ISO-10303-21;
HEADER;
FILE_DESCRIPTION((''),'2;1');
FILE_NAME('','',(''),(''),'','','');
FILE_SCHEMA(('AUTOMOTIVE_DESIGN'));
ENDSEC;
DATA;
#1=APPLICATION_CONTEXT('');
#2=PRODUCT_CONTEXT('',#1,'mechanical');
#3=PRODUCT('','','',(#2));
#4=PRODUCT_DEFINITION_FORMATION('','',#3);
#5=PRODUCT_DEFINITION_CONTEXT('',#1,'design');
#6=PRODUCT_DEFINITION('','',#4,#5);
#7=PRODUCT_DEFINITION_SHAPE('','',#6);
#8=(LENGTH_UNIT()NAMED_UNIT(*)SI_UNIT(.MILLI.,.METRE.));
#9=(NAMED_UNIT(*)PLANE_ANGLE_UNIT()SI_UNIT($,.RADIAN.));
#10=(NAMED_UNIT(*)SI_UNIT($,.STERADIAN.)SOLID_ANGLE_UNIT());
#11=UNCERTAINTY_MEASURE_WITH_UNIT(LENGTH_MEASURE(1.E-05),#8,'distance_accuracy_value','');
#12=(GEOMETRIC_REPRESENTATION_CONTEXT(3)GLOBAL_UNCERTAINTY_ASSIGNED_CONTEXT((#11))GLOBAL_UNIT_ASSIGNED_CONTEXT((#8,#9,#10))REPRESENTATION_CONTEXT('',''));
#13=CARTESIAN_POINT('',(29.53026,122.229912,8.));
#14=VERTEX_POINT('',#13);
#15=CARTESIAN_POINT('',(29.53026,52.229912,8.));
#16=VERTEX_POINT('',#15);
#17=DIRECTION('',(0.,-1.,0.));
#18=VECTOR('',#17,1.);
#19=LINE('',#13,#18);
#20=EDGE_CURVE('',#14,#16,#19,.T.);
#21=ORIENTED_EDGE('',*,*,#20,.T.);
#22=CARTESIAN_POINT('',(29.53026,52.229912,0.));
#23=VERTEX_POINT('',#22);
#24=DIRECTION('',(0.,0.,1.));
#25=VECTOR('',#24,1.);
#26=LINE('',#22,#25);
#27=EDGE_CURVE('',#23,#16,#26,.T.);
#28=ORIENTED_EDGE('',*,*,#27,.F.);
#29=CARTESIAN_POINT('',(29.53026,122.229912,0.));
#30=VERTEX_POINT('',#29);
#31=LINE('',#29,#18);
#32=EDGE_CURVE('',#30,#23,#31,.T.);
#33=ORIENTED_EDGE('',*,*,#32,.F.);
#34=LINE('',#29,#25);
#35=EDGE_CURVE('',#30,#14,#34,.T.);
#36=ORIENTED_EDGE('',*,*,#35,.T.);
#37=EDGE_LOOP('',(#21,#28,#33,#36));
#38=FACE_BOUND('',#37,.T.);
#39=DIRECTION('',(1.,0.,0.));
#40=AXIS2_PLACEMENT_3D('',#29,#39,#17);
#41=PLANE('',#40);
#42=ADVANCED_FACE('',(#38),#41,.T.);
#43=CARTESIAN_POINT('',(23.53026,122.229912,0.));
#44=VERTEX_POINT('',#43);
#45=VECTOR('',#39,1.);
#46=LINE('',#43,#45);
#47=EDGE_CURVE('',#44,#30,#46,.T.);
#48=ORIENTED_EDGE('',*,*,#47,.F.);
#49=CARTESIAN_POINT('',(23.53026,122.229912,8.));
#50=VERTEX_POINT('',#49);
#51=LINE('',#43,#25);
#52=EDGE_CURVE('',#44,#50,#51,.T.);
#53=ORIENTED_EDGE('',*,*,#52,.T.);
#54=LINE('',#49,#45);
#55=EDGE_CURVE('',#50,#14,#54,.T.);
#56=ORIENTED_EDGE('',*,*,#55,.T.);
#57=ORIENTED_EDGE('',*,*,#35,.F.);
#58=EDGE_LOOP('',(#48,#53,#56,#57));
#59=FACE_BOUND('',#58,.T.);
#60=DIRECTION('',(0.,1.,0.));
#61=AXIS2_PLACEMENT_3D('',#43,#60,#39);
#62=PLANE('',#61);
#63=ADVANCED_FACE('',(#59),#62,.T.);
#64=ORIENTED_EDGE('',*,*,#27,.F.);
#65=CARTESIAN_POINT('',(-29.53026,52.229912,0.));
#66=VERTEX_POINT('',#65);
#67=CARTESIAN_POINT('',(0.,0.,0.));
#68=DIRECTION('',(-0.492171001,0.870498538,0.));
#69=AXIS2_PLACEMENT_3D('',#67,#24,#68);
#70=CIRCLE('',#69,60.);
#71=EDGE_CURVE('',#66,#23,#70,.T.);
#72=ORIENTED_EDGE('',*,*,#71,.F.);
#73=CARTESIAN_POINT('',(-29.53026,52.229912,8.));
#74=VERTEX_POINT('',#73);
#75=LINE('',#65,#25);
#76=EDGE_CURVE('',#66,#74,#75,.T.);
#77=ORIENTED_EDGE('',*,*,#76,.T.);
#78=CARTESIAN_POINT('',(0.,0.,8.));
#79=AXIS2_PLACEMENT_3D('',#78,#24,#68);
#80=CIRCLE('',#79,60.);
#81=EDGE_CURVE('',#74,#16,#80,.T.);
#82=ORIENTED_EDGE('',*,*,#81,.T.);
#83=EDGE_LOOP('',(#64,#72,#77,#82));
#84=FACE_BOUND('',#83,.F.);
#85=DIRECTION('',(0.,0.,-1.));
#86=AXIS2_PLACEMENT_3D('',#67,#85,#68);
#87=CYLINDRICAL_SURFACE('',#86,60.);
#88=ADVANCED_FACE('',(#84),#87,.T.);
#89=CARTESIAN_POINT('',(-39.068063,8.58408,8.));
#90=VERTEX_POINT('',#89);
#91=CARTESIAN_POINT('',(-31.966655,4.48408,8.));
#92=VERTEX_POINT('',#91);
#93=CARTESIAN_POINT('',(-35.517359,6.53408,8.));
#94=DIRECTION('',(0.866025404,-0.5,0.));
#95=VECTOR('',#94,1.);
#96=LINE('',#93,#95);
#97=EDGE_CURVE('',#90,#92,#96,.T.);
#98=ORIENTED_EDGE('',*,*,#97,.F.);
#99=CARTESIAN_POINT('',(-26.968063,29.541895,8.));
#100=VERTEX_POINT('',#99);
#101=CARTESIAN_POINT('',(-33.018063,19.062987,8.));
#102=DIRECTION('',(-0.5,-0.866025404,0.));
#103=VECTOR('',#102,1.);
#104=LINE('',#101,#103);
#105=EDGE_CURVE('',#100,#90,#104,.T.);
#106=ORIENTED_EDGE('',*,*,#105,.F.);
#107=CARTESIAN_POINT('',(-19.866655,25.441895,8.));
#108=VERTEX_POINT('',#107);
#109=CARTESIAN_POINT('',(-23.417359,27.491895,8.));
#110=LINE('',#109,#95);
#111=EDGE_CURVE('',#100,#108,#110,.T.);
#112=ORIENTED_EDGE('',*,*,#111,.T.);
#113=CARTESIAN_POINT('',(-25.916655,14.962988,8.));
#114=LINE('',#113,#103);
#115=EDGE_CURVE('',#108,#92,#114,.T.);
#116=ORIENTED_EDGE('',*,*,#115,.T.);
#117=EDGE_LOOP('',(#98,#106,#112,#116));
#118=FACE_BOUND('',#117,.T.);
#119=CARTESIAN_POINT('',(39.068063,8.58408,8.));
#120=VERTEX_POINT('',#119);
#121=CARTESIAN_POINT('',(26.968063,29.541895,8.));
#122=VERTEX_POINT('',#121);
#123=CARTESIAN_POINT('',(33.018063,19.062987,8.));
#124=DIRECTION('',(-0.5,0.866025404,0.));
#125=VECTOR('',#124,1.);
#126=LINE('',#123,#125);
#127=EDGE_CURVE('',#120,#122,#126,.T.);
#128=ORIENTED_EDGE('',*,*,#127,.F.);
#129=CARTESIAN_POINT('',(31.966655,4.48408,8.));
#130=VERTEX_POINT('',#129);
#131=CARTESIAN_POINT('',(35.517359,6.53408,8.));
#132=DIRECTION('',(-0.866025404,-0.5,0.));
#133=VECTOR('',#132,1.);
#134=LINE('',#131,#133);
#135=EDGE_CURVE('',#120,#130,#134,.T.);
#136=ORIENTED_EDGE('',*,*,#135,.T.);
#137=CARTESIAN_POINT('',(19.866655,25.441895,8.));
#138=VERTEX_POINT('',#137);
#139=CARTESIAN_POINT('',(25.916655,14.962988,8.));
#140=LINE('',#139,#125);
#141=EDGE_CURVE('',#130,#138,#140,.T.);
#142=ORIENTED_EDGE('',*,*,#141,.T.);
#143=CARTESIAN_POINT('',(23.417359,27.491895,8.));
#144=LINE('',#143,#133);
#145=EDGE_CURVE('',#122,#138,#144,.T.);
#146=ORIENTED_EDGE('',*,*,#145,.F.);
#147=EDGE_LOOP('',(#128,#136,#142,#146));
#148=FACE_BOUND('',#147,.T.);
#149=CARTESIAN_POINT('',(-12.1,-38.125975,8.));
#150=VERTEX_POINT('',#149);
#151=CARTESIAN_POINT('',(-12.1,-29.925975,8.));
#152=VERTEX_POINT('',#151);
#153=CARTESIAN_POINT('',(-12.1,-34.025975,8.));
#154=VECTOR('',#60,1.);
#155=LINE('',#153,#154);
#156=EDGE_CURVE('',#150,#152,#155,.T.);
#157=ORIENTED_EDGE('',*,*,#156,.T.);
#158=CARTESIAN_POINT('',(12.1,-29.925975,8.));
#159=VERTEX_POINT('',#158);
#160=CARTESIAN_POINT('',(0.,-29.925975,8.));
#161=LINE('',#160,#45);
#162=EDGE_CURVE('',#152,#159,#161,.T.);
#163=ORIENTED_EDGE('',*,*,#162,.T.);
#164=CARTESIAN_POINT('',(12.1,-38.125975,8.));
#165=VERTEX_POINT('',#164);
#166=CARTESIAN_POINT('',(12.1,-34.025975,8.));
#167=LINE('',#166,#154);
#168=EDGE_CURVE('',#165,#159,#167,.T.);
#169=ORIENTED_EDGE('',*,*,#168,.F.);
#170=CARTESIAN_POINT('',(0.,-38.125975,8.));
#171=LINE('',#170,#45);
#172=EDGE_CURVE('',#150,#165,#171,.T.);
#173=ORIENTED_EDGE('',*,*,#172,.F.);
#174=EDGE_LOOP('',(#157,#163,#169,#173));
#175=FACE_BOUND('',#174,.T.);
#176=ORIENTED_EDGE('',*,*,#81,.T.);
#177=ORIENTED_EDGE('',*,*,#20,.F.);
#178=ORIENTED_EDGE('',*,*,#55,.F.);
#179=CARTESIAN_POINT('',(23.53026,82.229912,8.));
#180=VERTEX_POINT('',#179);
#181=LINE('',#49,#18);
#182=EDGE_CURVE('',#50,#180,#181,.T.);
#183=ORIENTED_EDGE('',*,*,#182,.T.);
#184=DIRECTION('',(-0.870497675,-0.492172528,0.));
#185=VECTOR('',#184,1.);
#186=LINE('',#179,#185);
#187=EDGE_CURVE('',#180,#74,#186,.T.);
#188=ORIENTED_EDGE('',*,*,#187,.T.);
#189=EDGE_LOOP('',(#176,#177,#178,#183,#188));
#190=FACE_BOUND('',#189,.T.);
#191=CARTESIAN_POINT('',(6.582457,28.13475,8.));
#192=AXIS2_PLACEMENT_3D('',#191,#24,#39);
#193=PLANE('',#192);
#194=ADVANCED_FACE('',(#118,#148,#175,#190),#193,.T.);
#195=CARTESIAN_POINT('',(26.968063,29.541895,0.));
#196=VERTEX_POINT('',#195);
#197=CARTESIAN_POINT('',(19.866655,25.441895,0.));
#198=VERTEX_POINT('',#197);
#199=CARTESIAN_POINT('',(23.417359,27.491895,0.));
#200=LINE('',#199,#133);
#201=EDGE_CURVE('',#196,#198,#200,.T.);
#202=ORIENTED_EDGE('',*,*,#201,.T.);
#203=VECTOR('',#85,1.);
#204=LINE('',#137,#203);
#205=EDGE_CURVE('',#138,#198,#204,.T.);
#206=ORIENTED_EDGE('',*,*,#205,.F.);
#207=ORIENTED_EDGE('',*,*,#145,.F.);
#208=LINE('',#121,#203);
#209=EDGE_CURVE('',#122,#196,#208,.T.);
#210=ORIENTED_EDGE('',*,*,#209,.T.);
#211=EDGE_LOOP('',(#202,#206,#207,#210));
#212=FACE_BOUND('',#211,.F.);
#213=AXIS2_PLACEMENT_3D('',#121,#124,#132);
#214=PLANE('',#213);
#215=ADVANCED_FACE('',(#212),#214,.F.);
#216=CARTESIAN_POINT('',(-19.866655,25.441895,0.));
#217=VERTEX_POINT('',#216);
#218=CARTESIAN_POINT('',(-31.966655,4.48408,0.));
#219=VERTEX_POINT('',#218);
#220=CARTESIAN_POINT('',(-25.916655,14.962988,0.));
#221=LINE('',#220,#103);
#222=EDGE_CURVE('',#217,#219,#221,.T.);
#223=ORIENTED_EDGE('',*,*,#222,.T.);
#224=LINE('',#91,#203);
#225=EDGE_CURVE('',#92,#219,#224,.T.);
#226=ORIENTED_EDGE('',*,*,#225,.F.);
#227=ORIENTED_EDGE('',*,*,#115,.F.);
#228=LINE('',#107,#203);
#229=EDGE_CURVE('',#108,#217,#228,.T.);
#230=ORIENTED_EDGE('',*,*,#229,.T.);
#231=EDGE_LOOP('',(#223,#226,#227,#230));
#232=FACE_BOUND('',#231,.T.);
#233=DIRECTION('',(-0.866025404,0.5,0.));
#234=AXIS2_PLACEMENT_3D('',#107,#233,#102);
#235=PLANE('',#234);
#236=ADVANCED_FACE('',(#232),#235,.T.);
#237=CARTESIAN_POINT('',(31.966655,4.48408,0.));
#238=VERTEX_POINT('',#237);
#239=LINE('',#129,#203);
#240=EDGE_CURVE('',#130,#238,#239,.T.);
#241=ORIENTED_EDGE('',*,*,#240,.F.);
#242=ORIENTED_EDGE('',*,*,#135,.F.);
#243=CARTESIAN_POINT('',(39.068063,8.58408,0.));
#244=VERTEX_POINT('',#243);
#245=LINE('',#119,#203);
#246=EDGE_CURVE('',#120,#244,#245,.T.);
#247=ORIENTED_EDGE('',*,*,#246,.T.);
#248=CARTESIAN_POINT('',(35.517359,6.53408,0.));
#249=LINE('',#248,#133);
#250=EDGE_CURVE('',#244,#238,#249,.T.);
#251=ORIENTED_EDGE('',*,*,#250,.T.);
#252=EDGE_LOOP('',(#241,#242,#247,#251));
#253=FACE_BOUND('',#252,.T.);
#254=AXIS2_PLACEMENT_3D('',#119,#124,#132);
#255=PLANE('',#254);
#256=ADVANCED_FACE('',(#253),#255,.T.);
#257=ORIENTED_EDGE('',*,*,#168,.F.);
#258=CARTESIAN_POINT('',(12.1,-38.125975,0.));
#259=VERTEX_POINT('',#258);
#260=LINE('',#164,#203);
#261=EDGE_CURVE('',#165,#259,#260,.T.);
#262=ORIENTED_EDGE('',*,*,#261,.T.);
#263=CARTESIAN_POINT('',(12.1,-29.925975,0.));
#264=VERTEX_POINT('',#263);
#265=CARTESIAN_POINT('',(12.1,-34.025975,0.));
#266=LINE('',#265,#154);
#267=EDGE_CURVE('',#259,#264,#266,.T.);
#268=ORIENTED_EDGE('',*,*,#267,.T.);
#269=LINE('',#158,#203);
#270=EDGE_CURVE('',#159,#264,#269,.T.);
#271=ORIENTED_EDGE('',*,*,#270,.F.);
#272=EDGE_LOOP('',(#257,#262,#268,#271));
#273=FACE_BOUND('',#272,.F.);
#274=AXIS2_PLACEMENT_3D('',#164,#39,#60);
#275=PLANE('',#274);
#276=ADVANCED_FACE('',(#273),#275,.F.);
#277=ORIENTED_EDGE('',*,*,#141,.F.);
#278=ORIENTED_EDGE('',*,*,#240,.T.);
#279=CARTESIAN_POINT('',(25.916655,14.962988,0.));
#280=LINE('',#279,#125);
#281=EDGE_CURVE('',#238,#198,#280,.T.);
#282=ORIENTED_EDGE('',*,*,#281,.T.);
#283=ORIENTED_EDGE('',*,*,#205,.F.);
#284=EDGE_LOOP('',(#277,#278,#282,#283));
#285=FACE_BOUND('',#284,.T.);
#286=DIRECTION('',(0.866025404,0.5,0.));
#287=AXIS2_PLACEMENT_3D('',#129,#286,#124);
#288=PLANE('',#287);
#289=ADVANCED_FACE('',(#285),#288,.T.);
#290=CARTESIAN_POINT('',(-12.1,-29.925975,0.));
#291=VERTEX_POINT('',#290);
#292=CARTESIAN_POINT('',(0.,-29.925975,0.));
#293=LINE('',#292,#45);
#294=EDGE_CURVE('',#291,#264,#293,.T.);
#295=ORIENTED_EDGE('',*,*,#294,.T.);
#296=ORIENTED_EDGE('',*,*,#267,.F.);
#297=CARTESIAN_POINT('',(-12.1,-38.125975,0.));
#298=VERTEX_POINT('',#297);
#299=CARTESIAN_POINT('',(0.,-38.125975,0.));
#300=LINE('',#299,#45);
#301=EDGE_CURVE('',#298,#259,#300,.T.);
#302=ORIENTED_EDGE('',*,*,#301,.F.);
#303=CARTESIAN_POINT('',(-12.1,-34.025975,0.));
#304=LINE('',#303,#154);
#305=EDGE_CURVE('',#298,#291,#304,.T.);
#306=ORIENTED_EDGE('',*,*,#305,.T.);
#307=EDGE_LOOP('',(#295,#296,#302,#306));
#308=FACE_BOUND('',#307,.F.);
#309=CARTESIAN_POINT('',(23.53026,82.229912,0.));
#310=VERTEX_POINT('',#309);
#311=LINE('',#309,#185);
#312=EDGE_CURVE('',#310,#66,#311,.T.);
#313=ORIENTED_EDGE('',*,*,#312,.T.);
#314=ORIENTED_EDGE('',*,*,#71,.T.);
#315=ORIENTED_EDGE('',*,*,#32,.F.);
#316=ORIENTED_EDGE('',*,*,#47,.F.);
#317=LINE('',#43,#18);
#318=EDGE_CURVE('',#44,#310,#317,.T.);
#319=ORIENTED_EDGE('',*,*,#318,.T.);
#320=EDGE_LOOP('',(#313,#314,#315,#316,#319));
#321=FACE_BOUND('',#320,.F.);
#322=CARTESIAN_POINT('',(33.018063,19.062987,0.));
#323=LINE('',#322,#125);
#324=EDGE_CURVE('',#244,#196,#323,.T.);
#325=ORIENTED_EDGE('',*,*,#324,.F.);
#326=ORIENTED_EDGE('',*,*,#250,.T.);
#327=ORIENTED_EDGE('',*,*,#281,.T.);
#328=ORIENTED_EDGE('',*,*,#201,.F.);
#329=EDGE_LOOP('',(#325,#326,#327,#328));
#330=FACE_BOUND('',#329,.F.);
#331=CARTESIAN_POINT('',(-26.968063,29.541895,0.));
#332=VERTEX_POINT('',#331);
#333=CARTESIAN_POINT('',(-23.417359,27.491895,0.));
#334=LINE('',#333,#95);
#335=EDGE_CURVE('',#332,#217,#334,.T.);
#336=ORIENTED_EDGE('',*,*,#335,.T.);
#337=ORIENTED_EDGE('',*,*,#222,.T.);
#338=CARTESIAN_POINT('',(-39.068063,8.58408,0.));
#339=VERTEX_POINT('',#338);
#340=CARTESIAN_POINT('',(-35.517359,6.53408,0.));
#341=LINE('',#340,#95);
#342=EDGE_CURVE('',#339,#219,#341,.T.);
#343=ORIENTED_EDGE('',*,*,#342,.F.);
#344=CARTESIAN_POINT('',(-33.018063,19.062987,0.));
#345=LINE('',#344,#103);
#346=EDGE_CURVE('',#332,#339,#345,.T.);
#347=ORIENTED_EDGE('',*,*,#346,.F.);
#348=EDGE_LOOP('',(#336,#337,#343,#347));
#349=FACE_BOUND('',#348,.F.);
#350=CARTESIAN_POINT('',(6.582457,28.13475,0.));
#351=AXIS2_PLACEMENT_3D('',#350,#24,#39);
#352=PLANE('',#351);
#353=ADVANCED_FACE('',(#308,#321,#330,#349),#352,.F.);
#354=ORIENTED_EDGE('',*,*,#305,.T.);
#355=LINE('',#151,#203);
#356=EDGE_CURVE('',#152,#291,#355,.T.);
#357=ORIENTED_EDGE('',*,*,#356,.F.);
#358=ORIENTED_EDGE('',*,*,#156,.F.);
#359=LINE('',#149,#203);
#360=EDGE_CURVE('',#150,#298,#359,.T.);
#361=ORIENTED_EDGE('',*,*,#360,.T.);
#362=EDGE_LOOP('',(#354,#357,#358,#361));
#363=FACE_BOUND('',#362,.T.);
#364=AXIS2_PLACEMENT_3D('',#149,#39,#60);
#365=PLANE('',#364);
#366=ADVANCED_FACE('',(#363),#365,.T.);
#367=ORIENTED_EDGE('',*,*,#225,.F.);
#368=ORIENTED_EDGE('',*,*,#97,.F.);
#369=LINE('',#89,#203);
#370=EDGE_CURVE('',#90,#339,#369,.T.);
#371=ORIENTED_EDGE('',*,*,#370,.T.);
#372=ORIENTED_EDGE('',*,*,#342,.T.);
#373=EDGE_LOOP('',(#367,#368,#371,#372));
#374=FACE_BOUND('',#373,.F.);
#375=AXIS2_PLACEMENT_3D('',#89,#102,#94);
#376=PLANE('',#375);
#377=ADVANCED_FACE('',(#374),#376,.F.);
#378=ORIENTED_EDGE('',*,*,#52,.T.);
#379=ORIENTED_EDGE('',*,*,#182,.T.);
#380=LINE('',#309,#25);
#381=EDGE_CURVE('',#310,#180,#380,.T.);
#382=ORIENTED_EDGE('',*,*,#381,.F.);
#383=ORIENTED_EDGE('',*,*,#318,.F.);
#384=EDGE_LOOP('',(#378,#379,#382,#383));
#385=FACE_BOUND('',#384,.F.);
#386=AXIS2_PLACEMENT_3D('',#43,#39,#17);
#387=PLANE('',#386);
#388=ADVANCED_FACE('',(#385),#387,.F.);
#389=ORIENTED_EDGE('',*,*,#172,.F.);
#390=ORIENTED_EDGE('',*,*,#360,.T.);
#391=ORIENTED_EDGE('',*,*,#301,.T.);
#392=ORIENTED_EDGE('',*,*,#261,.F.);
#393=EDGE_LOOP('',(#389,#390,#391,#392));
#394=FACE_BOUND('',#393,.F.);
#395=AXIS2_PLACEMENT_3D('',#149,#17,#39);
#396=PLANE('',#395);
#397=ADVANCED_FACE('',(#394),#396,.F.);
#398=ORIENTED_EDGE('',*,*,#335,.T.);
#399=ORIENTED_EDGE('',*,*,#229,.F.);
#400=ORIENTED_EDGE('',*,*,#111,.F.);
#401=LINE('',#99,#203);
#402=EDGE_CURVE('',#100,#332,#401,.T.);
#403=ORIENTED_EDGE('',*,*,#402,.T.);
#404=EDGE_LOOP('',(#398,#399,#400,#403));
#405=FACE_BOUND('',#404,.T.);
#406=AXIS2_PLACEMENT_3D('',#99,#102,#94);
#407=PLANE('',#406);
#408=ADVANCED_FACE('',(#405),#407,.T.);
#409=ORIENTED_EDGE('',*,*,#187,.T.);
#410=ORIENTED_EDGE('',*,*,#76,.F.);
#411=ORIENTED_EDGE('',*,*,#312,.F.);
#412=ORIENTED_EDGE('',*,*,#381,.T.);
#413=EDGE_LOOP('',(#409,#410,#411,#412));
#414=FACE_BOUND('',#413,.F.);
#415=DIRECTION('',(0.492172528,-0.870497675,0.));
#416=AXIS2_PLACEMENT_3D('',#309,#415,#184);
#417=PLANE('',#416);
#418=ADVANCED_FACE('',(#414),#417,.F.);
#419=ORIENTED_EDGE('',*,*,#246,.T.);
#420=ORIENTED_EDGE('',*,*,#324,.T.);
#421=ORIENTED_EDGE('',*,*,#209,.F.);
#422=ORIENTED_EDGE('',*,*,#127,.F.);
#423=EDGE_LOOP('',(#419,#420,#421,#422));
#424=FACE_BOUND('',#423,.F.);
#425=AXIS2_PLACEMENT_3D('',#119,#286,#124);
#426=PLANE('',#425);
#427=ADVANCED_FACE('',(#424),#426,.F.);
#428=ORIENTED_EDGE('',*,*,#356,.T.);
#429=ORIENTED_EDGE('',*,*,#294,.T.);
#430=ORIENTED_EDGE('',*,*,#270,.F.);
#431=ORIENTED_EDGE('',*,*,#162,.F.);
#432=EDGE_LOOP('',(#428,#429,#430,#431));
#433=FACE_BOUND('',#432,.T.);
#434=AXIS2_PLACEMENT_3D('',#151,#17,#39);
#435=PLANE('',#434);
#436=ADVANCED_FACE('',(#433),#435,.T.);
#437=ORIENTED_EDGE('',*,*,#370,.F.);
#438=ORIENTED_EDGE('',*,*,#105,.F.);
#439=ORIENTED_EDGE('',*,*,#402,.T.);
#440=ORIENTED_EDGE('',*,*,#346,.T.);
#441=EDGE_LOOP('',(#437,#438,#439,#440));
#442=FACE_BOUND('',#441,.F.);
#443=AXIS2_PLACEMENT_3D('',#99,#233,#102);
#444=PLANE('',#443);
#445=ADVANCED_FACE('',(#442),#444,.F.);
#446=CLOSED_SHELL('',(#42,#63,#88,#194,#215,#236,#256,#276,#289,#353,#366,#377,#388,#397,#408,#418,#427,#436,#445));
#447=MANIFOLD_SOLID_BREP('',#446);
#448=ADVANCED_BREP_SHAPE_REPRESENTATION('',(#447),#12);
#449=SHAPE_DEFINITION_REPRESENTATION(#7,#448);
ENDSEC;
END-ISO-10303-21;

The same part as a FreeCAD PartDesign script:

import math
import FreeCAD as App
import Part
import Sketcher
Q = App.Units.Quantity


def add_polygon(sketch, points):
    """Adds a closed chain of lines whose ends are joined by coincident constraints."""
    first, n = sketch.GeometryCount, len(points)
    for a, b in zip(points, points[1:] + points[:1]):
        sketch.addGeometry(Part.LineSegment(App.Vector(*a, 0), App.Vector(*b, 0)), False)
    for i in range(n):
        sketch.addConstraint(Sketcher.Constraint("Coincident", first + i, 2, first + (i + 1) % n, 1))

doc = App.newDocument("Part")
body = doc.addObject("PartDesign::Body", "Body")

sketch1 = body.newObject("Sketcher::SketchObject", "Sketch")
sketch1.AttachmentSupport = (doc.getObject("XY_Plane"), [""])
sketch1.MapMode = "FlatFace"
sketch1.addGeometry([
    Part.ArcOfCircle(Part.Circle(App.Vector(0, 0, 0), App.Vector(0, 0, 1), 60), math.radians(119.483375), math.radians(420.516625)),
    Part.LineSegment(App.Vector(29.53026, 52.229912, 0), App.Vector(29.53026, 122.229912, 0)),
    Part.LineSegment(App.Vector(29.53026, 122.229912, 0), App.Vector(23.53026, 122.229912, 0)),
    Part.LineSegment(App.Vector(23.53026, 122.229912, 0), App.Vector(23.53026, 82.229912, 0)),
    Part.LineSegment(App.Vector(23.53026, 82.229912, 0), App.Vector(-29.53026, 52.229912, 0)),
], False)
sketch1.addConstraint([
    Sketcher.Constraint("Coincident", 0, 2, 1, 1),
    Sketcher.Constraint("Coincident", 1, 2, 2, 1),
    Sketcher.Constraint("Coincident", 2, 2, 3, 1),
    Sketcher.Constraint("Coincident", 3, 2, 4, 1),
    Sketcher.Constraint("Coincident", 4, 2, 0, 1),
    Sketcher.Constraint("Vertical", 1),
    Sketcher.Constraint("Horizontal", 2),
    Sketcher.Constraint("Vertical", 3),
    Sketcher.Constraint("Coincident", 0, 3, -1, 1),
    Sketcher.Constraint("Radius", 0, Q("60 mm")),
    Sketcher.Constraint("DistanceX", 2, 2, 2, 1, Q("6 mm")),
    Sketcher.Constraint("DistanceY", 1, 1, 1, 2, Q("70 mm")),
    Sketcher.Constraint("DistanceY", 3, 2, 3, 1, Q("40 mm")),
    Sketcher.Constraint("DistanceY", 4, 2, 3, 2, Q("30 mm")),
    Sketcher.Constraint("DistanceX", -1, 1, 0, 2, Q("29.53026 mm")),
])
pad1 = body.newObject("PartDesign::Pad", "Pad")
pad1.Profile = sketch1
pad1.Length = 8

sketch2 = body.newObject("Sketcher::SketchObject", "Sketch001")
sketch2.AttachmentSupport = (doc.getObject("XY_Plane"), [""])
sketch2.MapMode = "FlatFace"
sketch2.AttachmentOffset = App.Placement(App.Vector(0, 0, 8), App.Rotation())
add_polygon(sketch2, [(-12, -30), (-12, -38), (12, -38), (12, -30)])
sketch2.addConstraint([
    Sketcher.Constraint("Vertical", 0),
    Sketcher.Constraint("Horizontal", 1),
    Sketcher.Constraint("Vertical", 2),
    Sketcher.Constraint("Horizontal", 3),
    Sketcher.Constraint("DistanceX", 1, 1, 1, 2, Q("24.2 mm")),
    Sketcher.Constraint("DistanceY", 0, 2, 0, 1, Q("8.2 mm")),
    Sketcher.Constraint("DistanceX", 0, 2, -1, 1, Q("12.1 mm")),
    Sketcher.Constraint("DistanceY", 0, 2, -1, 1, Q("38.125975 mm")),
])
pocket1 = body.newObject("PartDesign::Pocket", "Pocket")
pocket1.Profile = sketch2
pocket1.Length = 8
doc.recompute()

polarpattern = body.newObject("PartDesign::PolarPattern", "PolarPattern")
polarpattern.Originals = [pocket1]
polarpattern.Axis = (doc.getObject("Z_Axis"), [""])
polarpattern.Angle = 360
polarpattern.Occurrences = 3
body.Tip = polarpattern

doc.recompute()
